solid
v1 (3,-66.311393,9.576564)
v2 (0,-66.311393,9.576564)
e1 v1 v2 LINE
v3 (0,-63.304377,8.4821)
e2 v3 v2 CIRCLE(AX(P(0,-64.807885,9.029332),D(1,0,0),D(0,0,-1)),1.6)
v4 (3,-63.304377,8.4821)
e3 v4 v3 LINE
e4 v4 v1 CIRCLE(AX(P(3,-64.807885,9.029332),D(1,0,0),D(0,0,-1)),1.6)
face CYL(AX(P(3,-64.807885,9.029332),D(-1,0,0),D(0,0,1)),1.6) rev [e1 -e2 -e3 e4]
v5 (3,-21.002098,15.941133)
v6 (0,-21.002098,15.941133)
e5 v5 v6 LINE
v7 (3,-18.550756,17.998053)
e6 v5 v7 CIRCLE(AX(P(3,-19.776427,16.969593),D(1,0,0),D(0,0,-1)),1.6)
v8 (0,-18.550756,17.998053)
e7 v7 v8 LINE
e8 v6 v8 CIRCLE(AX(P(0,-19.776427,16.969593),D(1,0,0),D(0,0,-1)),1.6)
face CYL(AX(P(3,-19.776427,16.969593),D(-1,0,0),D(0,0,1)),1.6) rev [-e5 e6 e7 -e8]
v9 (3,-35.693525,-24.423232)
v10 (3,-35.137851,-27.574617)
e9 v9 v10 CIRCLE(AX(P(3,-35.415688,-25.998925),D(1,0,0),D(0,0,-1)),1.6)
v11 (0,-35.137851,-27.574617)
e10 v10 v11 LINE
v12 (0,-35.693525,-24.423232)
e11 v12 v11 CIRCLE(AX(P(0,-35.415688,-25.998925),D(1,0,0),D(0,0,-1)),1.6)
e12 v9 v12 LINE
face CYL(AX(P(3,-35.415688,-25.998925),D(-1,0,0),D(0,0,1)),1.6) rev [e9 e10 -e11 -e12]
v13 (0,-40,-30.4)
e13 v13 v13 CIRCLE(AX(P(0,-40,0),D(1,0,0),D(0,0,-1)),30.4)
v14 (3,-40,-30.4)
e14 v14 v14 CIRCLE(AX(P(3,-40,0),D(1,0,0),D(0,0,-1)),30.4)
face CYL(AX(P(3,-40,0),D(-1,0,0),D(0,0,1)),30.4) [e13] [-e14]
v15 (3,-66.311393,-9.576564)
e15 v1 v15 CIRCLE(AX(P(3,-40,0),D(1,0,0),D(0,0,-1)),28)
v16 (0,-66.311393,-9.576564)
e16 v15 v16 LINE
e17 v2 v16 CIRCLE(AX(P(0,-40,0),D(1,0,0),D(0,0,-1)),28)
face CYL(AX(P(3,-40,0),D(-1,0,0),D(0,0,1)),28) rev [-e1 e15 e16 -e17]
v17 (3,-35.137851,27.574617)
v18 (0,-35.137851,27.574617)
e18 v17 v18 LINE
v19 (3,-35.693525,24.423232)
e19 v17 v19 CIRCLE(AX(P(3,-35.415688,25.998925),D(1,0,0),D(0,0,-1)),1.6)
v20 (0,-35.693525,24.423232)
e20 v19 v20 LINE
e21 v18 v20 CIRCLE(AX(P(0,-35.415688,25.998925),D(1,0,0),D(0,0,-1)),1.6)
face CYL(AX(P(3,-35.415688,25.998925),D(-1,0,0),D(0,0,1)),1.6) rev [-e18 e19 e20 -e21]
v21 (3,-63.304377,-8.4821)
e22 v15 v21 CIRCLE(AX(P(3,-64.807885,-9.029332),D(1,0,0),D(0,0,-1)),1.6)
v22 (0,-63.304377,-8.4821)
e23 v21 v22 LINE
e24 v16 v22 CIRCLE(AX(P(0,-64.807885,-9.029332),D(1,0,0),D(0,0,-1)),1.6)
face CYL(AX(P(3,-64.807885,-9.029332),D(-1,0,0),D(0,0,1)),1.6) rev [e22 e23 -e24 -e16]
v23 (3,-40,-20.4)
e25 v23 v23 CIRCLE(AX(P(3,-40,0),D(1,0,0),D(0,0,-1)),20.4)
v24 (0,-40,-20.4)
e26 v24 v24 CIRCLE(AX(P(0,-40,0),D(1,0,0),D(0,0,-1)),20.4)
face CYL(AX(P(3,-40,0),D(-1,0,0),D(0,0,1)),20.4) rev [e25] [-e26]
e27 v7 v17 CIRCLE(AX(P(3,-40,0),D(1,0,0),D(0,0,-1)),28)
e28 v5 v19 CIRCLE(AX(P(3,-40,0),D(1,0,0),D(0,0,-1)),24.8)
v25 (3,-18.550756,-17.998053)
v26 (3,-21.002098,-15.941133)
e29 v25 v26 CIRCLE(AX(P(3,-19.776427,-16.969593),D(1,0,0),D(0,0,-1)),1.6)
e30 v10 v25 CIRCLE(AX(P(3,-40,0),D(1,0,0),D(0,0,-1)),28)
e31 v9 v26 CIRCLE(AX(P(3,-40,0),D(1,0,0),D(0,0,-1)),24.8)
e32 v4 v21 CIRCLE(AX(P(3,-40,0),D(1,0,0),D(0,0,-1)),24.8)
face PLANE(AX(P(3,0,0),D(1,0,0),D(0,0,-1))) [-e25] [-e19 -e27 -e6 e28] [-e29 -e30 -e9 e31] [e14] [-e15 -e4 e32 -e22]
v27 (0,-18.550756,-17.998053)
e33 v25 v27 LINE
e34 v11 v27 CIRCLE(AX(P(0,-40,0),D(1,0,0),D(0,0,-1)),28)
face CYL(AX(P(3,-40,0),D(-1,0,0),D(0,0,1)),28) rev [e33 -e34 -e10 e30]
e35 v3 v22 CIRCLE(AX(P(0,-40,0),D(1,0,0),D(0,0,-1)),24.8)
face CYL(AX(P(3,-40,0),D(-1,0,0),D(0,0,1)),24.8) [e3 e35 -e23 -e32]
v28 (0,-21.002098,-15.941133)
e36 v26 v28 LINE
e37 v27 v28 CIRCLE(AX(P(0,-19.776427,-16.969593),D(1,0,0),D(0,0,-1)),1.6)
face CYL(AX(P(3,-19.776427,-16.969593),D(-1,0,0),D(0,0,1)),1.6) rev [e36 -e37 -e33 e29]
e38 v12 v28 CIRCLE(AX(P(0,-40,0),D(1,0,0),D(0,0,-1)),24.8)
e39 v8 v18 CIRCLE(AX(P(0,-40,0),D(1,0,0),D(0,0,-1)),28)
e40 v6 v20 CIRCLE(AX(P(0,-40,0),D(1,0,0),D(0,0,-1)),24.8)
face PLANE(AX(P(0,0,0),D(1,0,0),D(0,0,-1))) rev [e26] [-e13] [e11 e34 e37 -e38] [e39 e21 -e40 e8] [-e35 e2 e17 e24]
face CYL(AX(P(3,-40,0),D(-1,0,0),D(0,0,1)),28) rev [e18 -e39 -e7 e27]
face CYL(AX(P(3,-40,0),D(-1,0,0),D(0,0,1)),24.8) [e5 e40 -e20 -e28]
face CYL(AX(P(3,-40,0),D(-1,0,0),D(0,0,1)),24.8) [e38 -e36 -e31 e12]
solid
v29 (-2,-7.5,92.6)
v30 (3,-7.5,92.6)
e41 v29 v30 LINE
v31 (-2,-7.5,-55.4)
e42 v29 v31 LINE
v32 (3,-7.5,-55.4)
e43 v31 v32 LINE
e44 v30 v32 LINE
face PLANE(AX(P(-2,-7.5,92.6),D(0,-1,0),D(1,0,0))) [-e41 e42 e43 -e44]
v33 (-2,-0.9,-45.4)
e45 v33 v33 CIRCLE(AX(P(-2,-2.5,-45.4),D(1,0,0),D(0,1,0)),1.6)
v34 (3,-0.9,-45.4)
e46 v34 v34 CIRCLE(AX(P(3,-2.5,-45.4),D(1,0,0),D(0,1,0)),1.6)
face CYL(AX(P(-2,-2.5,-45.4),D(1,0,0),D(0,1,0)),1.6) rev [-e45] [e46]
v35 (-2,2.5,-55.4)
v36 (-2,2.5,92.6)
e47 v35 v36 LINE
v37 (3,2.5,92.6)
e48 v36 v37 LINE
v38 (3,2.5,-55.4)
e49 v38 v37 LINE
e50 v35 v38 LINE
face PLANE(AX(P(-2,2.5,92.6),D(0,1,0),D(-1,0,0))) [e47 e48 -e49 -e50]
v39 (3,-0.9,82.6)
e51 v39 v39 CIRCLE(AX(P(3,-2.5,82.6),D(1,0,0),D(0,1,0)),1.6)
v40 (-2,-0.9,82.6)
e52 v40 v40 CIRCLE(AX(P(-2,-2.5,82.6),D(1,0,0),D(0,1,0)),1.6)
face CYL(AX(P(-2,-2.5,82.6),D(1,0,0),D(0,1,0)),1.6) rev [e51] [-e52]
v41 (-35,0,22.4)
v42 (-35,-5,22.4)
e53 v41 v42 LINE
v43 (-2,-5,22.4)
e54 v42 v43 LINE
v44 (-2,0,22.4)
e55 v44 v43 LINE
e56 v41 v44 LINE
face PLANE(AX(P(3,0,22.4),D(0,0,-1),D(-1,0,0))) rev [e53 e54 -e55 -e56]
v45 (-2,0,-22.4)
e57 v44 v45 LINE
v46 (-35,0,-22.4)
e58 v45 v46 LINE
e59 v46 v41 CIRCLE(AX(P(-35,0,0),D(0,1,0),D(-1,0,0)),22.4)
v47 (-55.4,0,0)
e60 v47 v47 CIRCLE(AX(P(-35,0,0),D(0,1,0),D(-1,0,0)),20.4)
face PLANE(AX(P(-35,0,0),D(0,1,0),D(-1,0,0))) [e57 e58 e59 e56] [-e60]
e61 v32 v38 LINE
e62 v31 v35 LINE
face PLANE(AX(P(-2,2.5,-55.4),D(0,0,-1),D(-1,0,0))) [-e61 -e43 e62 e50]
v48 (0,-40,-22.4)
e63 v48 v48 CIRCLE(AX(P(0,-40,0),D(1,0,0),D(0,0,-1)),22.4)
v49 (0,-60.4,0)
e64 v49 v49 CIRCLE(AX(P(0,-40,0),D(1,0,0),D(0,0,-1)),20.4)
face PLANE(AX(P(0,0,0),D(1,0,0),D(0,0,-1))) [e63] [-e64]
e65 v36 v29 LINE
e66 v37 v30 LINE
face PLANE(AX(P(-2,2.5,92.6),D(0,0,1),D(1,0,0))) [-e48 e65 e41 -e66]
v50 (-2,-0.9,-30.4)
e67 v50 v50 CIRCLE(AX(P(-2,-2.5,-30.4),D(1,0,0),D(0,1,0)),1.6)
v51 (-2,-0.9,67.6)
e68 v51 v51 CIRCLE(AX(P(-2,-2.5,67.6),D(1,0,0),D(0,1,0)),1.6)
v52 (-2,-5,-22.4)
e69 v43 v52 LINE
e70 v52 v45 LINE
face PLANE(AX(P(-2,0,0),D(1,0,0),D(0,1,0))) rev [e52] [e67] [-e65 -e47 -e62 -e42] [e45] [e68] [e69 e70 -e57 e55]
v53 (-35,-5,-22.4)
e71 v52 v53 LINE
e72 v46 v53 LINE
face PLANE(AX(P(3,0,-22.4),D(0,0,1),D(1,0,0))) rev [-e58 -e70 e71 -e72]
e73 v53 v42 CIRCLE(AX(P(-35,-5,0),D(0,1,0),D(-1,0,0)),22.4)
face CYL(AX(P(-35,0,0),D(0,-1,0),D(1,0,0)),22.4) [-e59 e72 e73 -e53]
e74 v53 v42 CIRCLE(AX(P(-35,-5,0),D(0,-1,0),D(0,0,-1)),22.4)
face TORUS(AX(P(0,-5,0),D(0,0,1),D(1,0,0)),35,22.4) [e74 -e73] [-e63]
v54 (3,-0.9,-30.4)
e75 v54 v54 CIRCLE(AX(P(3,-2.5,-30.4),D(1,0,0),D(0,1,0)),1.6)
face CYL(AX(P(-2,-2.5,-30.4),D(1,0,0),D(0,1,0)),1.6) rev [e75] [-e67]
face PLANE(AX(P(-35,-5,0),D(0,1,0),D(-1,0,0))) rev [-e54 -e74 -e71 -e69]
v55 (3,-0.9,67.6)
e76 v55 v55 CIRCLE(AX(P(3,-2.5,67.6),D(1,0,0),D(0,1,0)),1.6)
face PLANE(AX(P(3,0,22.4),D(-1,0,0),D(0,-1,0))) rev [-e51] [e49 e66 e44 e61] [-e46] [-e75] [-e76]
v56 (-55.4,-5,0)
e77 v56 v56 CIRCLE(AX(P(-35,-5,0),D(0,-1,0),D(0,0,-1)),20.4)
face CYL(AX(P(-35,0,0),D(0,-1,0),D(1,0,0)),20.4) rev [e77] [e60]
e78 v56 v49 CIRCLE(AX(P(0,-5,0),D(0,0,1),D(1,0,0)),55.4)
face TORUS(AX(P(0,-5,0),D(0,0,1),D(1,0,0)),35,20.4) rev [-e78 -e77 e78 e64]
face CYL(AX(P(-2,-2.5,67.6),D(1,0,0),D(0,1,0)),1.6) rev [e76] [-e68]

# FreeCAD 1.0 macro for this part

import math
import FreeCAD as App
import Part
import Sketcher


def add_polygon(sketch, points):
    """Adds a closed chain of lines whose ends are joined by coincident constraints."""
    first, n = sketch.GeometryCount, len(points)
    for a, b in zip(points, points[1:] + points[:1]):
        sketch.addGeometry(Part.LineSegment(App.Vector(*a, 0), App.Vector(*b, 0)), False)
    for i in range(n):
        sketch.addConstraint(Sketcher.Constraint("Coincident", first + i, 2, first + (i + 1) % n, 1))

doc = App.newDocument("Part")
body = doc.addObject("PartDesign::Body", "Body")

sketch1 = body.newObject("Sketcher::SketchObject", "Sketch")
sketch1.AttachmentSupport = (doc.getObject("YZ_Plane"), [""])
sketch1.MapMode = "FlatFace"
sketch1.addGeometry([
    Part.Circle(App.Vector(-40, 0, 0), App.Vector(0, 0, 1), 22),
    Part.Circle(App.Vector(-40, 0, 0), App.Vector(0, 0, 1), 20),
], False)
sketch1.addGeometry(Part.LineSegment(App.Vector(-5, 0, 0), App.Vector(-5, -10, 0)), True)
sketch1.addConstraint([
    Sketcher.Constraint("Vertical", 2),
    Sketcher.Constraint("Coincident", 1, 3, 0, 3),
    Sketcher.Constraint("PointOnObject", 0, 3, -1),
    Sketcher.Constraint("PointOnObject", 2, 1, -1),
    Sketcher.Constraint("Diameter", 0, 44.8),
    Sketcher.Constraint("Diameter", 1, 40.8),
    Sketcher.Constraint("DistanceY", 2, 2, 2, 1, 10.0),
    Sketcher.Constraint("DistanceX", 0, 3, -1, 1, 40.0),
    Sketcher.Constraint("DistanceX", 2, 1, -1, 1, 5.0),
])
revolution = body.newObject("PartDesign::Revolution", "Revolution")
revolution.Profile = sketch1
revolution.ReferenceAxis = (sketch1, ["Axis0"])
revolution.Angle = 90

sketch2 = body.newObject("Sketcher::SketchObject", "Sketch001")
sketch2.AttachmentSupport = (doc.getObject("XZ_Plane"), [""])
sketch2.MapMode = "FlatFace"
sketch2.AttachmentOffset = App.Placement(App.Vector(0, 0, 5), App.Rotation())
sketch2.addGeometry([
    Part.LineSegment(App.Vector(3, 22, 0), App.Vector(3, -22, 0)),
    Part.LineSegment(App.Vector(3, -22, 0), App.Vector(-35, -22, 0)),
    Part.ArcOfCircle(Part.Circle(App.Vector(-35, 0, 0), App.Vector(0, 0, 1), 22), math.radians(90), math.radians(270)),
    Part.LineSegment(App.Vector(-35, 22, 0), App.Vector(3, 22, 0)),
    Part.Circle(App.Vector(-35, 0, 0), App.Vector(0, 0, 1), 20),
], False)
sketch2.addConstraint([
    Sketcher.Constraint("Coincident", 0, 2, 1, 1),
    Sketcher.Constraint("Tangent", 1, 2, 2, 2),
    Sketcher.Constraint("Tangent", 2, 1, 3, 1),
    Sketcher.Constraint("Coincident", 3, 2, 0, 1),
    Sketcher.Constraint("Vertical", 0),
    Sketcher.Constraint("Horizontal", 1),
    Sketcher.Constraint("Horizontal", 3),
    Sketcher.Constraint("Coincident", 4, 3, 2, 3),
    Sketcher.Constraint("PointOnObject", 2, 3, -1),
    Sketcher.Constraint("Diameter", 4, 40.8),
    Sketcher.Constraint("Radius", 2, 22.4),
    Sketcher.Constraint("DistanceX", 1, 2, 1, 1, 38.0),
    Sketcher.Constraint("DistanceX", 2, 3, -1, 1, 35.0),
])
pad1 = body.newObject("PartDesign::Pad", "Pad")
pad1.Profile = sketch2
pad1.Length = 5
pad1.Reversed = True

sketch3 = body.newObject("Sketcher::SketchObject", "Sketch002")
sketch3.AttachmentSupport = (doc.getObject("YZ_Plane"), [""])
sketch3.MapMode = "FlatFace"
sketch3.AttachmentOffset = App.Placement(App.Vector(0, 0, 3), App.Rotation())
add_polygon(sketch3, [(2.5, 92.6), (-7.5, 92.6), (-7.5, -55.4), (2.5, -55.4)])
sketch3.addGeometry(Part.Circle(App.Vector(-2.5, 82.6, 0), App.Vector(0, 0, 1), 1.6), False)
sketch3.addGeometry(Part.Circle(App.Vector(-2.5, 67.6, 0), App.Vector(0, 0, 1), 1.6), False)
sketch3.addGeometry(Part.Circle(App.Vector(-2.5, -30.4, 0), App.Vector(0, 0, 1), 1.6), False)
sketch3.addGeometry(Part.Circle(App.Vector(-2.5, -45.4, 0), App.Vector(0, 0, 1), 1.6), False)
sketch3.addConstraint([
    Sketcher.Constraint("Horizontal", 0),
    Sketcher.Constraint("Vertical", 1),
    Sketcher.Constraint("Horizontal", 2),
    Sketcher.Constraint("Vertical", 3),
    Sketcher.Constraint("Equal", 4, 5),
    Sketcher.Constraint("Equal", 5, 6),
    Sketcher.Constraint("Equal", 6, 7),
    Sketcher.Constraint("Vertical", 4, 3, 5, 3),
    Sketcher.Constraint("Vertical", 5, 3, 6, 3),
    Sketcher.Constraint("Vertical", 6, 3, 7, 3),
    Sketcher.Constraint("Diameter", 4, 3.2),
    Sketcher.Constraint("DistanceX", 0, 2, 0, 1, 10.0),
    Sketcher.Constraint("DistanceY", 1, 2, 1, 1, 148.0),
    Sketcher.Constraint("DistanceY", 5, 3, 4, 3, 15.0),
    Sketcher.Constraint("DistanceY", 6, 3, 5, 3, 98.0),
    Sketcher.Constraint("DistanceY", 7, 3, 6, 3, 15.0),
    Sketcher.Constraint("DistanceX", 0, 2, 4, 3, 5.0),
    Sketcher.Constraint("DistanceY", 4, 3, 0, 2, 10.0),
    Sketcher.Constraint("DistanceX", 4, 3, -1, 1, 2.5),
    Sketcher.Constraint("DistanceY", -1, 1, 4, 3, 82.6),
])
pad2 = body.newObject("PartDesign::Pad", "Pad001")
pad2.Profile = sketch3
pad2.Length = 5
pad2.Reversed = True
body2 = doc.addObject("PartDesign::Body", "Body001")

sketch4 = body2.newObject("Sketcher::SketchObject", "Sketch003")
sketch4.AttachmentSupport = (doc.getObject("YZ_Plane001"), [""])
sketch4.MapMode = "FlatFace"
sketch4.addGeometry([
    Part.Circle(App.Vector(-40, 0, 0), App.Vector(0, 0, 1), 30.4),
    Part.ArcOfCircle(Part.Circle(App.Vector(-64.8, -9, 0), App.Vector(0, 0, 1), 1.6), math.radians(-160), math.radians(20)),
    Part.ArcOfCircle(Part.Circle(App.Vector(-40, 0, 0), App.Vector(0, 0, 1), 28), math.radians(160), math.radians(200)),
    Part.ArcOfCircle(Part.Circle(App.Vector(-64.8, 9, 0), App.Vector(0, 0, 1), 1.6), math.radians(-20), math.radians(160)),
    Part.ArcOfCircle(Part.Circle(App.Vector(-40, 0, 0), App.Vector(0, 0, 1), 24.8), math.radians(160), math.radians(200)),
    Part.ArcOfCircle(Part.Circle(App.Vector(-35.4, 26, 0), App.Vector(0, 0, 1), 1.6), math.radians(80), math.radians(260)),
    Part.ArcOfCircle(Part.Circle(App.Vector(-40, 0, 0), App.Vector(0, 0, 1), 28), math.radians(40), math.radians(80)),
    Part.ArcOfCircle(Part.Circle(App.Vector(-19.8, 17, 0), App.Vector(0, 0, 1), 1.6), math.radians(-140), math.radians(40)),
    Part.ArcOfCircle(Part.Circle(App.Vector(-40, 0, 0), App.Vector(0, 0, 1), 24.8), math.radians(40), math.radians(80)),
    Part.ArcOfCircle(Part.Circle(App.Vector(-19.8, -17, 0), App.Vector(0, 0, 1), 1.6), math.radians(-40), math.radians(140)),
    Part.ArcOfCircle(Part.Circle(App.Vector(-40, 0, 0), App.Vector(0, 0, 1), 28), math.radians(-80), math.radians(-40)),
    Part.ArcOfCircle(Part.Circle(App.Vector(-35.4, -26, 0), App.Vector(0, 0, 1), 1.6), math.radians(100), math.radians(280)),
    Part.ArcOfCircle(Part.Circle(App.Vector(-40, 0, 0), App.Vector(0, 0, 1), 24.8), math.radians(-80), math.radians(-40)),
    Part.Circle(App.Vector(-40, 0, 0), App.Vector(0, 0, 1), 20.4),
], False)
sketch4.addConstraint([
    Sketcher.Constraint("Tangent", 1, 1, 2, 2),
    Sketcher.Constraint("Tangent", 2, 1, 3, 2),
    Sketcher.Constraint("Tangent", 3, 1, 4, 1),
    Sketcher.Constraint("Tangent", 4, 2, 1, 2),
    Sketcher.Constraint("Tangent", 5, 1, 6, 2),
    Sketcher.Constraint("Tangent", 6, 1, 7, 2),
    Sketcher.Constraint("Tangent", 7, 1, 8, 1),
    Sketcher.Constraint("Tangent", 8, 2, 5, 2),
    Sketcher.Constraint("Tangent", 9, 1, 10, 2),
    Sketcher.Constraint("Tangent", 10, 1, 11, 2),
    Sketcher.Constraint("Tangent", 11, 1, 12, 1),
    Sketcher.Constraint("Tangent", 12, 2, 9, 2),
    Sketcher.Constraint("Coincident", 2, 3, 0, 3),
    Sketcher.Constraint("Coincident", 4, 3, 0, 3),
    Sketcher.Constraint("Coincident", 6, 3, 0, 3),
    Sketcher.Constraint("Coincident", 8, 3, 0, 3),
    Sketcher.Constraint("Coincident", 10, 3, 0, 3),
    Sketcher.Constraint("Coincident", 12, 3, 0, 3),
    Sketcher.Constraint("Coincident", 13, 3, 0, 3),
    Sketcher.Constraint("Equal", 3, 5),
    Sketcher.Constraint("Equal", 2, 6),
    Sketcher.Constraint("Equal", 7, 9),
    Sketcher.Constraint("Equal", 6, 10),
    Sketcher.Constraint("Symmetric", 1, 3, 3, 3, -1),
    Sketcher.Constraint("Vertical", 7, 3, 9, 3),
    Sketcher.Constraint("Vertical", 5, 3, 11, 3),
    Sketcher.Constraint("Radius", 2, 28.0),
    Sketcher.Constraint("Diameter", 0, 60.8),
    Sketcher.Constraint("Diameter", 13, 40.8),
    Sketcher.Constraint("Radius", 1, 1.6),
    Sketcher.Constraint("DistanceX", 0, 3, -1, 1, 40.0),
    Sketcher.Constraint("DistanceY", -1, 1, 3, 1, 8.4821),
    Sketcher.Constraint("DistanceY", 7, 1, 8, 2, 8.4821),
    Sketcher.Constraint("DistanceX", 8, 2, 7, 3, 15.917098),
])
pad3 = body2.newObject("PartDesign::Pad", "Pad002")
pad3.Profile = sketch4
pad3.Length = 3

doc.recompute()
